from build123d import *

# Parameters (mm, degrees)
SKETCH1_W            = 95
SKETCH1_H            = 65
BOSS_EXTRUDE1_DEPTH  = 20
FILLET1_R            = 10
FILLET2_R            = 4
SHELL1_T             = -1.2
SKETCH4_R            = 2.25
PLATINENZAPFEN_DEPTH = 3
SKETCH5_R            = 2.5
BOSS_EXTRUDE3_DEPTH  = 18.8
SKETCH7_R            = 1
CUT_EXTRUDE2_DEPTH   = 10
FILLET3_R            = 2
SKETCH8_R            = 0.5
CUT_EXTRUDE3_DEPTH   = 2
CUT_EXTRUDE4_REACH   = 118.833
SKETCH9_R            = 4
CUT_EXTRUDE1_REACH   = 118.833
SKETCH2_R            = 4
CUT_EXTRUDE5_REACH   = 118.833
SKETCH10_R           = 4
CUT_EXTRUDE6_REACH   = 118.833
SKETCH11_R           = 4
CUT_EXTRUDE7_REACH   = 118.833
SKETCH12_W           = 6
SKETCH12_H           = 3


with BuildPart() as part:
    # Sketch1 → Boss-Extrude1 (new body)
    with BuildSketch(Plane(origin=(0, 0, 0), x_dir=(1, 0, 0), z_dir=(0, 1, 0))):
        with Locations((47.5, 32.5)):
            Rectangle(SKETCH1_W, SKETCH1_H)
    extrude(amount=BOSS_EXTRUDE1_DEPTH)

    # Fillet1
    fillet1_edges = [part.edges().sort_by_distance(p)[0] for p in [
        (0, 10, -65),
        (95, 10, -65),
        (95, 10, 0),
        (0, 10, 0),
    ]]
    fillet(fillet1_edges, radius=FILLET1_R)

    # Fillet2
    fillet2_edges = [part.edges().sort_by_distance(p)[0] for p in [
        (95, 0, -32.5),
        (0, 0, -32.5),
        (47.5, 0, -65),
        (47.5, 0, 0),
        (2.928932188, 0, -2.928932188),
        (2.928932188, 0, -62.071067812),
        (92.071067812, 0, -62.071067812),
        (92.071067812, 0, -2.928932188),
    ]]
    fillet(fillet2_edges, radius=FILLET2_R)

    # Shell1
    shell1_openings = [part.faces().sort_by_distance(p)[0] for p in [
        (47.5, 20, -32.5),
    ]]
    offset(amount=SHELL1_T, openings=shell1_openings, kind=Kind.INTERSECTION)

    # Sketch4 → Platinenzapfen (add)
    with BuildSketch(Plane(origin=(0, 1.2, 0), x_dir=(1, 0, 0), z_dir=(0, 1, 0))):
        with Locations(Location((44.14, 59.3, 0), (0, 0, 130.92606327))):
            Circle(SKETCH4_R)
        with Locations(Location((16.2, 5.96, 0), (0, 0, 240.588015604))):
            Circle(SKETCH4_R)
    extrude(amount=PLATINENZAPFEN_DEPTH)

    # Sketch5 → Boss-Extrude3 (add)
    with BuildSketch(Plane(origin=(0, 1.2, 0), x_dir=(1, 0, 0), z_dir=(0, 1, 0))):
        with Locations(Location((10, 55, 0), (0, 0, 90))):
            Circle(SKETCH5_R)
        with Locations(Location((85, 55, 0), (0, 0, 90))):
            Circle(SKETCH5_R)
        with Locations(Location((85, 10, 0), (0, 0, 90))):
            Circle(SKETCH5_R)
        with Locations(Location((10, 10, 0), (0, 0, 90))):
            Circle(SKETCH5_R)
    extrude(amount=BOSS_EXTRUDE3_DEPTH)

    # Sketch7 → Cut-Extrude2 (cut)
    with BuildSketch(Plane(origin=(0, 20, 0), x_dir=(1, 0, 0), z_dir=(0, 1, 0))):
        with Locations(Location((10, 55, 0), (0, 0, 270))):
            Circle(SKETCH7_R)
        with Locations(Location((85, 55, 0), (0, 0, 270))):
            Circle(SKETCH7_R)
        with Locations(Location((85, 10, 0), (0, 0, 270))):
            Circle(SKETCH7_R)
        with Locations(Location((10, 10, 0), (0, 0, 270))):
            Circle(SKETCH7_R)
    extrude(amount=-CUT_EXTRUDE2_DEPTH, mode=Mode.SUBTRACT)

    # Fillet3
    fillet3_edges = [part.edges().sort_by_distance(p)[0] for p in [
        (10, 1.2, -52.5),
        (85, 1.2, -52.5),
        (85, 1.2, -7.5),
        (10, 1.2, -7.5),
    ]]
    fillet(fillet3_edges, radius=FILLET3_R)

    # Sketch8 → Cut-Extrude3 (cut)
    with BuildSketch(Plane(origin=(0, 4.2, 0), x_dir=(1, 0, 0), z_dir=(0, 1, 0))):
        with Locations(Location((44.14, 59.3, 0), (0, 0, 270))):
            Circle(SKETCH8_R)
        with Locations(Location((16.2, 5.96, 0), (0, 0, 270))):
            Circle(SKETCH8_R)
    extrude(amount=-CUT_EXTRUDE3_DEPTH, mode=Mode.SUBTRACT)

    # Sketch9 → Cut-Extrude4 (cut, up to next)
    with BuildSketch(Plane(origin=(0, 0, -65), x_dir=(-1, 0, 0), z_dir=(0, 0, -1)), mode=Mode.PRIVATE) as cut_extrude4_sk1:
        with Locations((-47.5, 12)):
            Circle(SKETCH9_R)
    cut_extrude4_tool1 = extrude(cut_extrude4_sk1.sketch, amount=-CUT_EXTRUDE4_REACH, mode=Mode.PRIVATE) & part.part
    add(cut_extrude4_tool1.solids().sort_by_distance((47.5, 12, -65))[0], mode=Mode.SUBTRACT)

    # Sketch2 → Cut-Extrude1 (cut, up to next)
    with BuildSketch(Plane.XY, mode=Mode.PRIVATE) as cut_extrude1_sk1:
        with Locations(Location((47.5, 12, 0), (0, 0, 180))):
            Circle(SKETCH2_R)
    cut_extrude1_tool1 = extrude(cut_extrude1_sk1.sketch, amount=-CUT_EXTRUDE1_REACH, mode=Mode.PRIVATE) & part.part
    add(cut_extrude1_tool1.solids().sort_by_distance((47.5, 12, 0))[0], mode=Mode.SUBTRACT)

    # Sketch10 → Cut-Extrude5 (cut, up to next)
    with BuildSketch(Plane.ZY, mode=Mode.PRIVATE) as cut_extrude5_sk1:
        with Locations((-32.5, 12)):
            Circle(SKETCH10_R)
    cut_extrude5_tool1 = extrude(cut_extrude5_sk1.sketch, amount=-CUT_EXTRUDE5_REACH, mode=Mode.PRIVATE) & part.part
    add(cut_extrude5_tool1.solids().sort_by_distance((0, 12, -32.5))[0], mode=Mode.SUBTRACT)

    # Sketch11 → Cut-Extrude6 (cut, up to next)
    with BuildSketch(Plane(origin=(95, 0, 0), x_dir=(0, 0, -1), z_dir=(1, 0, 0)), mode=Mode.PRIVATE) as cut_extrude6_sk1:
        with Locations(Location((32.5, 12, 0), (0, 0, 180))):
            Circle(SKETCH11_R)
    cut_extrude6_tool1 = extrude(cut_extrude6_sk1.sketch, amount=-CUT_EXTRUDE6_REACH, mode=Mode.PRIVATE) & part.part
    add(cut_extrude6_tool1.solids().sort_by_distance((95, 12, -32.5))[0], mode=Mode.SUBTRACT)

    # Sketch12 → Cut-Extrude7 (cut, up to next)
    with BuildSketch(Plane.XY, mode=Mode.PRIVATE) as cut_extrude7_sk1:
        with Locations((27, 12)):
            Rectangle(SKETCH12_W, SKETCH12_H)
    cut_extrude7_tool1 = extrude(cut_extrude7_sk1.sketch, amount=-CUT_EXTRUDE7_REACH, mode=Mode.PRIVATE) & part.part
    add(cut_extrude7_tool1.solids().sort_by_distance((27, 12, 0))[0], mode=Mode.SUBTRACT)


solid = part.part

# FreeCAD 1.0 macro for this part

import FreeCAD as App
import Part
import Sketcher
Q = App.Units.Quantity


def edges_at(feature, points):
    """Names of the edges that pass closest to the given points."""
    edges = feature.Shape.Edges
    near = lambda p: min(range(len(edges)), key=lambda i: edges[i].distToShape(Part.Vertex(*p))[0])
    return sorted({f"Edge{near(p) + 1}" for p in points})


def faces_at(feature, points):
    """Names of the faces that lie closest to the given points."""
    faces = feature.Shape.Faces
    near = lambda p: min(range(len(faces)), key=lambda i: faces[i].distToShape(Part.Vertex(*p))[0])
    return sorted({f"Face{near(p) + 1}" for p in points})

doc = App.newDocument("Part")
body = doc.addObject("PartDesign::Body", "Body")

sketch1 = doc.addObject("Sketcher::SketchObject", "Sketch")
body.addObject(sketch1)
sketch1.AttachmentSupport = (doc.XZ_Plane, [""])
sketch1.MapMode = "FlatFace"
sketch1.addGeometry([
    Part.LineSegment(App.Vector(0, -65, 0), App.Vector(0, 0, 0)),
    Part.LineSegment(App.Vector(0, 0, 0), App.Vector(95, 0, 0)),
    Part.LineSegment(App.Vector(95, 0, 0), App.Vector(95, -65, 0)),
    Part.LineSegment(App.Vector(95, -65, 0), App.Vector(0, -65, 0)),
], False)
sketch1.addConstraint([
    Sketcher.Constraint("Coincident", 0, 2, 1, 1),
    Sketcher.Constraint("Coincident", 1, 2, 2, 1),
    Sketcher.Constraint("Coincident", 2, 2, 3, 1),
    Sketcher.Constraint("Coincident", 3, 2, 0, 1),
    Sketcher.Constraint("Vertical", 0),
    Sketcher.Constraint("Horizontal", 1),
    Sketcher.Constraint("Vertical", 2),
    Sketcher.Constraint("Horizontal", 3),
    Sketcher.Constraint("Coincident", 0, 2, -1, 1),
    Sketcher.Constraint("DistanceX", 1, 1, 1, 2, Q("95 mm")),
    Sketcher.Constraint("DistanceY", 0, 1, 0, 2, Q("65 mm")),
])
pad1 = doc.addObject("PartDesign::Pad", "Pad")
body.addObject(pad1)
pad1.Profile = sketch1
pad1.Length = 20
pad1.Reversed = True
doc.recompute()

fillet = doc.addObject("PartDesign::Fillet", "Fillet")
body.addObject(fillet)
fillet.Base = (pad1, edges_at(pad1, [
    (0, 10, -65),
    (95, 10, -65),
    (95, 10, 0),
    (0, 10, 0),
]))
fillet.Radius = 10
doc.recompute()

fillet2 = doc.addObject("PartDesign::Fillet", "Fillet001")
body.addObject(fillet2)
fillet2.Base = (fillet, edges_at(fillet, [
    (95, 0, -32.5),
    (0, 0, -32.5),
    (47.5, 0, -65),
    (47.5, 0, 0),
    (2.929, 0, -2.929),
    (2.929, 0, -62.071),
    (92.071, 0, -62.071),
    (92.071, 0, -2.929),
]))
fillet2.Radius = 4
doc.recompute()

thickness = doc.addObject("PartDesign::Thickness", "Thickness")
body.addObject(thickness)
thickness.Base = (fillet2, faces_at(fillet2, [(47.5, 20, -32.5)]))
thickness.Value = 1.2
thickness.Reversed = True
thickness.Join = "Intersection"

sketch2 = doc.addObject("Sketcher::SketchObject", "Sketch001")
body.addObject(sketch2)
sketch2.AttachmentSupport = (doc.XZ_Plane, [""])
sketch2.MapMode = "FlatFace"
sketch2.AttachmentOffset = App.Placement(App.Vector(0, 0, -1.2), App.Rotation())
sketch2.addGeometry([
    Part.Circle(App.Vector(44.1, -59.3, 0), App.Vector(0, 0, 1), 2.2),
    Part.Circle(App.Vector(16.2, -6, 0), App.Vector(0, 0, 1), 2.2),
], False)
sketch2.addConstraint([
    Sketcher.Constraint("Equal", 0, 1),
    Sketcher.Constraint("Diameter", 0, Q("4.5 mm")),
    Sketcher.Constraint("DistanceY", 0, 3, -1, 1, Q("59.3 mm")),
    Sketcher.Constraint("DistanceX", -1, 1, 1, 3, Q("16.2 mm")),
    Sketcher.Constraint("DistanceX", -1, 1, 0, 3, Q("44.14 mm")),
    Sketcher.Constraint("DistanceY", 1, 3, -1, 1, Q("5.96 mm")),
])
pad2 = doc.addObject("PartDesign::Pad", "Pad001")
body.addObject(pad2)
pad2.Profile = sketch2
pad2.Length = 3
pad2.Reversed = True

sketch3 = doc.addObject("Sketcher::SketchObject", "Sketch002")
body.addObject(sketch3)
sketch3.AttachmentSupport = (doc.XZ_Plane, [""])
sketch3.MapMode = "FlatFace"
sketch3.AttachmentOffset = App.Placement(App.Vector(0, 0, -1.2), App.Rotation())
sketch3.addGeometry([
    Part.Circle(App.Vector(10, -55, 0), App.Vector(0, 0, 1), 2.5),
    Part.Circle(App.Vector(85, -55, 0), App.Vector(0, 0, 1), 2.5),
    Part.Circle(App.Vector(85, -10, 0), App.Vector(0, 0, 1), 2.5),
    Part.Circle(App.Vector(10, -10, 0), App.Vector(0, 0, 1), 2.5),
], False)
sketch3.addConstraint([
    Sketcher.Constraint("Equal", 0, 1),
    Sketcher.Constraint("Equal", 1, 2),
    Sketcher.Constraint("Equal", 2, 3),
    Sketcher.Constraint("Horizontal", 0, 3, 1, 3),
    Sketcher.Constraint("Horizontal", 2, 3, 3, 3),
    Sketcher.Constraint("Vertical", 1, 3, 2, 3),
    Sketcher.Constraint("Vertical", 0, 3, 3, 3),
    Sketcher.Constraint("Diameter", 0, Q("5 mm")),
    Sketcher.Constraint("DistanceX", -1, 1, 0, 3, Q("10 mm")),
    Sketcher.Constraint("DistanceY", 0, 3, -1, 1, Q("55 mm")),
    Sketcher.Constraint("DistanceX", -1, 1, 1, 3, Q("85 mm")),
    Sketcher.Constraint("DistanceY", 2, 3, -1, 1, Q("10 mm")),
])
pad3 = doc.addObject("PartDesign::Pad", "Pad002")
body.addObject(pad3)
pad3.Profile = sketch3
pad3.Length = 18.8
pad3.Reversed = True

sketch4 = doc.addObject("Sketcher::SketchObject", "Sketch003")
body.addObject(sketch4)
sketch4.AttachmentSupport = (doc.XZ_Plane, [""])
sketch4.MapMode = "FlatFace"
sketch4.AttachmentOffset = App.Placement(App.Vector(0, 0, -20), App.Rotation())
sketch4.addGeometry([
    Part.Circle(App.Vector(10, -55, 0), App.Vector(0, 0, 1), 1),
    Part.Circle(App.Vector(85, -55, 0), App.Vector(0, 0, 1), 1),
    Part.Circle(App.Vector(85, -10, 0), App.Vector(0, 0, 1), 1),
    Part.Circle(App.Vector(10, -10, 0), App.Vector(0, 0, 1), 1),
], False)
sketch4.addConstraint([
    Sketcher.Constraint("Equal", 0, 1),
    Sketcher.Constraint("Equal", 1, 2),
    Sketcher.Constraint("Equal", 2, 3),
    Sketcher.Constraint("Horizontal", 0, 3, 1, 3),
    Sketcher.Constraint("Horizontal", 2, 3, 3, 3),
    Sketcher.Constraint("Vertical", 1, 3, 2, 3),
    Sketcher.Constraint("Vertical", 0, 3, 3, 3),
    Sketcher.Constraint("Diameter", 0, Q("2 mm")),
    Sketcher.Constraint("DistanceX", -1, 1, 0, 3, Q("10 mm")),
    Sketcher.Constraint("DistanceY", 0, 3, -1, 1, Q("55 mm")),
    Sketcher.Constraint("DistanceX", -1, 1, 1, 3, Q("85 mm")),
    Sketcher.Constraint("DistanceY", 2, 3, -1, 1, Q("10 mm")),
])
pocket1 = doc.addObject("PartDesign::Pocket", "Pocket")
body.addObject(pocket1)
pocket1.Profile = sketch4
pocket1.Length = 10
pocket1.Reversed = True
doc.recompute()

fillet3 = doc.addObject("PartDesign::Fillet", "Fillet002")
body.addObject(fillet3)
fillet3.Base = (pocket1, edges_at(pocket1, [
    (10, 1.2, -52.5),
    (85, 1.2, -52.5),
    (85, 1.2, -7.5),
    (10, 1.2, -7.5),
]))
fillet3.Radius = 2

sketch5 = doc.addObject("Sketcher::SketchObject", "Sketch004")
body.addObject(sketch5)
sketch5.AttachmentSupport = (doc.XZ_Plane, [""])
sketch5.MapMode = "FlatFace"
sketch5.AttachmentOffset = App.Placement(App.Vector(0, 0, -4.2), App.Rotation())
sketch5.addGeometry([
    Part.Circle(App.Vector(44.1, -59.3, 0), App.Vector(0, 0, 1), 0.5),
    Part.Circle(App.Vector(16.2, -6, 0), App.Vector(0, 0, 1), 0.5),
], False)
sketch5.addConstraint([
    Sketcher.Constraint("Equal", 0, 1),
    Sketcher.Constraint("Diameter", 0, Q("1 mm")),
    Sketcher.Constraint("DistanceY", 0, 3, -1, 1, Q("59.3 mm")),
    Sketcher.Constraint("DistanceX", -1, 1, 1, 3, Q("16.2 mm")),
    Sketcher.Constraint("DistanceX", -1, 1, 0, 3, Q("44.14 mm")),
    Sketcher.Constraint("DistanceY", 1, 3, -1, 1, Q("5.96 mm")),
])
pocket2 = doc.addObject("PartDesign::Pocket", "Pocket001")
body.addObject(pocket2)
pocket2.Profile = sketch5
pocket2.Length = 2
pocket2.Reversed = True

sketch6 = doc.addObject("Sketcher::SketchObject", "Sketch005")
body.addObject(sketch6)
sketch6.AttachmentSupport = (doc.XY_Plane, [""])
sketch6.MapMode = "FlatFace"
sketch6.AttachmentOffset = App.Placement(App.Vector(0, 0, -65), App.Rotation())
sketch6.addGeometry(Part.Circle(App.Vector(47.5, 12, 0), App.Vector(0, 0, 1), 4), False)
sketch6.addConstraint([
    Sketcher.Constraint("Diameter", 0, Q("8 mm")),
    Sketcher.Constraint("DistanceY", -1, 1, 0, 3, Q("12 mm")),
    Sketcher.Constraint("DistanceX", -1, 1, 0, 3, Q("47.5 mm")),
])
pocket3 = doc.addObject("PartDesign::Pocket", "Pocket002")
body.addObject(pocket3)
pocket3.Profile = sketch6
pocket3.Type = "UpToFirst"
pocket3.Reversed = True

sketch7 = doc.addObject("Sketcher::SketchObject", "Sketch006")
body.addObject(sketch7)
sketch7.AttachmentSupport = (doc.XY_Plane, [""])
sketch7.MapMode = "FlatFace"
sketch7.addGeometry(Part.Circle(App.Vector(47.5, 12, 0), App.Vector(0, 0, 1), 4), False)
sketch7.addConstraint([
    Sketcher.Constraint("Diameter", 0, Q("8 mm")),
    Sketcher.Constraint("DistanceY", -1, 1, 0, 3, Q("12 mm")),
    Sketcher.Constraint("DistanceX", -1, 1, 0, 3, Q("47.5 mm")),
])
pocket4 = doc.addObject("PartDesign::Pocket", "Pocket003")
body.addObject(pocket4)
pocket4.Profile = sketch7
pocket4.Type = "UpToFirst"

sketch8 = doc.addObject("Sketcher::SketchObject", "Sketch007")
body.addObject(sketch8)
sketch8.AttachmentSupport = (doc.YZ_Plane, [""])
sketch8.MapMode = "FlatFace"
sketch8.addGeometry(Part.Circle(App.Vector(12, -32.5, 0), App.Vector(0, 0, 1), 4), False)
sketch8.addConstraint([
    Sketcher.Constraint("Diameter", 0, Q("8 mm")),
    Sketcher.Constraint("DistanceX", -1, 1, 0, 3, Q("12 mm")),
    Sketcher.Constraint("DistanceY", 0, 3, -1, 1, Q("32.5 mm")),
])
pocket5 = doc.addObject("PartDesign::Pocket", "Pocket004")
body.addObject(pocket5)
pocket5.Profile = sketch8
pocket5.Type = "UpToFirst"
pocket5.Reversed = True

sketch9 = doc.addObject("Sketcher::SketchObject", "Sketch008")
body.addObject(sketch9)
sketch9.AttachmentSupport = (doc.YZ_Plane, [""])
sketch9.MapMode = "FlatFace"
sketch9.AttachmentOffset = App.Placement(App.Vector(0, 0, 95), App.Rotation())
sketch9.addGeometry(Part.Circle(App.Vector(12, -32.5, 0), App.Vector(0, 0, 1), 4), False)
sketch9.addConstraint([
    Sketcher.Constraint("Diameter", 0, Q("8 mm")),
    Sketcher.Constraint("DistanceX", -1, 1, 0, 3, Q("12 mm")),
    Sketcher.Constraint("DistanceY", 0, 3, -1, 1, Q("32.5 mm")),
])
pocket6 = doc.addObject("PartDesign::Pocket", "Pocket005")
body.addObject(pocket6)
pocket6.Profile = sketch9
pocket6.Type = "UpToFirst"

sketch10 = doc.addObject("Sketcher::SketchObject", "Sketch009")
body.addObject(sketch10)
sketch10.AttachmentSupport = (doc.XY_Plane, [""])
sketch10.MapMode = "FlatFace"
sketch10.addGeometry([
    Part.LineSegment(App.Vector(24, 13.5, 0), App.Vector(24, 10.5, 0)),
    Part.LineSegment(App.Vector(24, 10.5, 0), App.Vector(30, 10.5, 0)),
    Part.LineSegment(App.Vector(30, 10.5, 0), App.Vector(30, 13.5, 0)),
    Part.LineSegment(App.Vector(30, 13.5, 0), App.Vector(24, 13.5, 0)),
], False)
sketch10.addConstraint([
    Sketcher.Constraint("Coincident", 0, 2, 1, 1),
    Sketcher.Constraint("Coincident", 1, 2, 2, 1),
    Sketcher.Constraint("Coincident", 2, 2, 3, 1),
    Sketcher.Constraint("Coincident", 3, 2, 0, 1),
    Sketcher.Constraint("Vertical", 0),
    Sketcher.Constraint("Horizontal", 1),
    Sketcher.Constraint("Vertical", 2),
    Sketcher.Constraint("Horizontal", 3),
    Sketcher.Constraint("DistanceX", 1, 1, 1, 2, Q("6 mm")),
    Sketcher.Constraint("DistanceY", 0, 2, 0, 1, Q("3 mm")),
    Sketcher.Constraint("DistanceX", -1, 1, 0, 2, Q("24 mm")),
    Sketcher.Constraint("DistanceY", -1, 1, 0, 2, Q("10.5 mm")),
])
pocket7 = doc.addObject("PartDesign::Pocket", "Pocket006")
body.addObject(pocket7)
pocket7.Profile = sketch10
pocket7.Type = "UpToFirst"

doc.recompute()
